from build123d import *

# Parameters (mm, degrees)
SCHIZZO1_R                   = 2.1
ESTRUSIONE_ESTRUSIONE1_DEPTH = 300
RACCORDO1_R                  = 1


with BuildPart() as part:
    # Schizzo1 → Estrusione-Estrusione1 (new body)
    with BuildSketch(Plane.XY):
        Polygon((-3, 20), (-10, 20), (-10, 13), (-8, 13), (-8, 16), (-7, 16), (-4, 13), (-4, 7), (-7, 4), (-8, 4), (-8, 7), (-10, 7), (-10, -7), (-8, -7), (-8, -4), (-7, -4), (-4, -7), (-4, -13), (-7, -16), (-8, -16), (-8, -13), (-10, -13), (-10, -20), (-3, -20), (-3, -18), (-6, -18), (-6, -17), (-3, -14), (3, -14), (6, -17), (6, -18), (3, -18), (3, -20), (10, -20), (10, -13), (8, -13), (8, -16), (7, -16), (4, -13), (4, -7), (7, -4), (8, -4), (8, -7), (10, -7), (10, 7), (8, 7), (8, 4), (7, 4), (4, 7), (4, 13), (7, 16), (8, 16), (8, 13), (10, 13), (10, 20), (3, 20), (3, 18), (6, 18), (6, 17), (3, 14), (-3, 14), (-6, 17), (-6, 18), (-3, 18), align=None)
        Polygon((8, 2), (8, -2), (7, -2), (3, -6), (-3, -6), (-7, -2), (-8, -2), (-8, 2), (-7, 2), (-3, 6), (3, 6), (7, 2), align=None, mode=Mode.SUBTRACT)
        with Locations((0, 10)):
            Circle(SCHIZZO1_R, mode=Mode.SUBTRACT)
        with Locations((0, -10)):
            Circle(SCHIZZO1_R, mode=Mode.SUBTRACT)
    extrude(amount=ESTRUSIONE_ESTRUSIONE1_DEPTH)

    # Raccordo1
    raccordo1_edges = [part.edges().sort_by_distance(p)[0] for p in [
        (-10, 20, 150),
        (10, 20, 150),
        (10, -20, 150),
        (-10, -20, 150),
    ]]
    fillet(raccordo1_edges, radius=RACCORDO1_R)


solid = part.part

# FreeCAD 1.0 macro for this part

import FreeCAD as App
import Part
import Sketcher
from FreeCAD import Vector


def edges_at(feature, points):
    """Names of the edges that pass closest to the given points."""
    edges = feature.Shape.Edges
    near = lambda p: min(range(len(edges)), key=lambda i: edges[i].distToShape(Part.Vertex(*p))[0])
    return sorted({f"Edge{near(p) + 1}" for p in points})

doc = App.newDocument("Part")
body = doc.addObject("PartDesign::Body", "Body")

# Sketch on XY plane
sketch1 = body.newObject("Sketcher::SketchObject", "Sketch")
sketch1.AttachmentSupport = (doc.getObject("XY_Plane"), [""])
sketch1.MapMode = "FlatFace"
sketch1.addGeometry([
    Part.LineSegment(Vector(-3, 20, 0), Vector(-10, 20, 0)),  # 0
    Part.LineSegment(Vector(-10, 20, 0), Vector(-10, 13, 0)),  # 1
    Part.LineSegment(Vector(-10, 13, 0), Vector(-8, 13, 0)),  # 2
    Part.LineSegment(Vector(-8, 13, 0), Vector(-8, 16, 0)),  # 3
    Part.LineSegment(Vector(-8, 16, 0), Vector(-7, 16, 0)),  # 4
    Part.LineSegment(Vector(-7, 16, 0), Vector(-4, 13, 0)),  # 5
    Part.LineSegment(Vector(-4, 13, 0), Vector(-4, 7, 0)),  # 6
    Part.LineSegment(Vector(-4, 7, 0), Vector(-7, 4, 0)),  # 7
    Part.LineSegment(Vector(-7, 4, 0), Vector(-8, 4, 0)),  # 8
    Part.LineSegment(Vector(-8, 4, 0), Vector(-8, 7, 0)),  # 9
    Part.LineSegment(Vector(-8, 7, 0), Vector(-10, 7, 0)),  # 10
    Part.LineSegment(Vector(-10, 7, 0), Vector(-10, -7, 0)),  # 11
    Part.LineSegment(Vector(-10, -7, 0), Vector(-8, -7, 0)),  # 12
    Part.LineSegment(Vector(-8, -7, 0), Vector(-8, -4, 0)),  # 13
    Part.LineSegment(Vector(-8, -4, 0), Vector(-7, -4, 0)),  # 14
    Part.LineSegment(Vector(-7, -4, 0), Vector(-4, -7, 0)),  # 15
    Part.LineSegment(Vector(-4, -7, 0), Vector(-4, -13, 0)),  # 16
    Part.LineSegment(Vector(-4, -13, 0), Vector(-7, -16, 0)),  # 17
    Part.LineSegment(Vector(-7, -16, 0), Vector(-8, -16, 0)),  # 18
    Part.LineSegment(Vector(-8, -16, 0), Vector(-8, -13, 0)),  # 19
    Part.LineSegment(Vector(-8, -13, 0), Vector(-10, -13, 0)),  # 20
    Part.LineSegment(Vector(-10, -13, 0), Vector(-10, -20, 0)),  # 21
    Part.LineSegment(Vector(-10, -20, 0), Vector(-3, -20, 0)),  # 22
    Part.LineSegment(Vector(-3, -20, 0), Vector(-3, -18, 0)),  # 23
    Part.LineSegment(Vector(-3, -18, 0), Vector(-6, -18, 0)),  # 24
    Part.LineSegment(Vector(-6, -18, 0), Vector(-6, -17, 0)),  # 25
    Part.LineSegment(Vector(-6, -17, 0), Vector(-3, -14, 0)),  # 26
    Part.LineSegment(Vector(-3, -14, 0), Vector(3, -14, 0)),  # 27
    Part.LineSegment(Vector(3, -14, 0), Vector(6, -17, 0)),  # 28
    Part.LineSegment(Vector(6, -17, 0), Vector(6, -18, 0)),  # 29
    Part.LineSegment(Vector(6, -18, 0), Vector(3, -18, 0)),  # 30
    Part.LineSegment(Vector(3, -18, 0), Vector(3, -20, 0)),  # 31
    Part.LineSegment(Vector(3, -20, 0), Vector(10, -20, 0)),  # 32
    Part.LineSegment(Vector(10, -20, 0), Vector(10, -13, 0)),  # 33
    Part.LineSegment(Vector(10, -13, 0), Vector(8, -13, 0)),  # 34
    Part.LineSegment(Vector(8, -13, 0), Vector(8, -16, 0)),  # 35
    Part.LineSegment(Vector(8, -16, 0), Vector(7, -16, 0)),  # 36
    Part.LineSegment(Vector(7, -16, 0), Vector(4, -13, 0)),  # 37
    Part.LineSegment(Vector(4, -13, 0), Vector(4, -7, 0)),  # 38
    Part.LineSegment(Vector(4, -7, 0), Vector(7, -4, 0)),  # 39
    Part.LineSegment(Vector(7, -4, 0), Vector(8, -4, 0)),  # 40
    Part.LineSegment(Vector(8, -4, 0), Vector(8, -7, 0)),  # 41
    Part.LineSegment(Vector(8, -7, 0), Vector(10, -7, 0)),  # 42
    Part.LineSegment(Vector(10, -7, 0), Vector(10, 7, 0)),  # 43
    Part.LineSegment(Vector(10, 7, 0), Vector(8, 7, 0)),  # 44
    Part.LineSegment(Vector(8, 7, 0), Vector(8, 4, 0)),  # 45
    Part.LineSegment(Vector(8, 4, 0), Vector(7, 4, 0)),  # 46
    Part.LineSegment(Vector(7, 4, 0), Vector(4, 7, 0)),  # 47
    Part.LineSegment(Vector(4, 7, 0), Vector(4, 13, 0)),  # 48
    Part.LineSegment(Vector(4, 13, 0), Vector(7, 16, 0)),  # 49
    Part.LineSegment(Vector(7, 16, 0), Vector(8, 16, 0)),  # 50
    Part.LineSegment(Vector(8, 16, 0), Vector(8, 13, 0)),  # 51
    Part.LineSegment(Vector(8, 13, 0), Vector(10, 13, 0)),  # 52
    Part.LineSegment(Vector(10, 13, 0), Vector(10, 20, 0)),  # 53
    Part.LineSegment(Vector(10, 20, 0), Vector(3, 20, 0)),  # 54
    Part.LineSegment(Vector(3, 20, 0), Vector(3, 18, 0)),  # 55
    Part.LineSegment(Vector(3, 18, 0), Vector(6, 18, 0)),  # 56
    Part.LineSegment(Vector(6, 18, 0), Vector(6, 17, 0)),  # 57
    Part.LineSegment(Vector(6, 17, 0), Vector(3, 14, 0)),  # 58
    Part.LineSegment(Vector(3, 14, 0), Vector(-3, 14, 0)),  # 59
    Part.LineSegment(Vector(-3, 14, 0), Vector(-6, 17, 0)),  # 60
    Part.LineSegment(Vector(-6, 17, 0), Vector(-6, 18, 0)),  # 61
    Part.LineSegment(Vector(-6, 18, 0), Vector(-3, 18, 0)),  # 62
    Part.LineSegment(Vector(-3, 18, 0), Vector(-3, 20, 0)),  # 63
    Part.Circle(Vector(0, -10, 0), Vector(0, 0, 1), 2.1),  # 64
    Part.LineSegment(Vector(7, 2, 0), Vector(8, 2, 0)),  # 65
    Part.LineSegment(Vector(8, 2, 0), Vector(8, -2, 0)),  # 66
    Part.LineSegment(Vector(8, -2, 0), Vector(7, -2, 0)),  # 67
    Part.LineSegment(Vector(7, -2, 0), Vector(3, -6, 0)),  # 68
    Part.LineSegment(Vector(3, -6, 0), Vector(-3, -6, 0)),  # 69
    Part.LineSegment(Vector(-3, -6, 0), Vector(-7, -2, 0)),  # 70
    Part.LineSegment(Vector(-7, -2, 0), Vector(-8, -2, 0)),  # 71
    Part.LineSegment(Vector(-8, -2, 0), Vector(-8, 2, 0)),  # 72
    Part.LineSegment(Vector(-8, 2, 0), Vector(-7, 2, 0)),  # 73
    Part.LineSegment(Vector(-7, 2, 0), Vector(-3, 6, 0)),  # 74
    Part.LineSegment(Vector(-3, 6, 0), Vector(3, 6, 0)),  # 75
    Part.LineSegment(Vector(3, 6, 0), Vector(7, 2, 0)),  # 76
    Part.Circle(Vector(0, 10, 0), Vector(0, 0, 1), 2.1),  # 77
], False)
sketch1.addConstraint([
    Sketcher.Constraint("Coincident", 0, 2, 1, 1),
    Sketcher.Constraint("Coincident", 1, 2, 2, 1),
    Sketcher.Constraint("Coincident", 2, 2, 3, 1),
    Sketcher.Constraint("Coincident", 3, 2, 4, 1),
    Sketcher.Constraint("Coincident", 4, 2, 5, 1),
    Sketcher.Constraint("Coincident", 5, 2, 6, 1),
    Sketcher.Constraint("Coincident", 6, 2, 7, 1),
    Sketcher.Constraint("Coincident", 7, 2, 8, 1),
    Sketcher.Constraint("Coincident", 8, 2, 9, 1),
    Sketcher.Constraint("Coincident", 9, 2, 10, 1),
    Sketcher.Constraint("Coincident", 10, 2, 11, 1),
    Sketcher.Constraint("Coincident", 11, 2, 12, 1),
    Sketcher.Constraint("Coincident", 12, 2, 13, 1),
    Sketcher.Constraint("Coincident", 13, 2, 14, 1),
    Sketcher.Constraint("Coincident", 14, 2, 15, 1),
    Sketcher.Constraint("Coincident", 15, 2, 16, 1),
    Sketcher.Constraint("Coincident", 16, 2, 17, 1),
    Sketcher.Constraint("Coincident", 17, 2, 18, 1),
    Sketcher.Constraint("Coincident", 18, 2, 19, 1),
    Sketcher.Constraint("Coincident", 19, 2, 20, 1),
    Sketcher.Constraint("Coincident", 20, 2, 21, 1),
    Sketcher.Constraint("Coincident", 21, 2, 22, 1),
    Sketcher.Constraint("Coincident", 22, 2, 23, 1),
    Sketcher.Constraint("Coincident", 23, 2, 24, 1),
    Sketcher.Constraint("Coincident", 24, 2, 25, 1),
    Sketcher.Constraint("Coincident", 25, 2, 26, 1),
    Sketcher.Constraint("Coincident", 26, 2, 27, 1),
    Sketcher.Constraint("Coincident", 27, 2, 28, 1),
    Sketcher.Constraint("Coincident", 28, 2, 29, 1),
    Sketcher.Constraint("Coincident", 29, 2, 30, 1),
    Sketcher.Constraint("Coincident", 30, 2, 31, 1),
    Sketcher.Constraint("Coincident", 31, 2, 32, 1),
    Sketcher.Constraint("Coincident", 32, 2, 33, 1),
    Sketcher.Constraint("Coincident", 33, 2, 34, 1),
    Sketcher.Constraint("Coincident", 34, 2, 35, 1),
    Sketcher.Constraint("Coincident", 35, 2, 36, 1),
    Sketcher.Constraint("Coincident", 36, 2, 37, 1),
    Sketcher.Constraint("Coincident", 37, 2, 38, 1),
    Sketcher.Constraint("Coincident", 38, 2, 39, 1),
    Sketcher.Constraint("Coincident", 39, 2, 40, 1),
    Sketcher.Constraint("Coincident", 40, 2, 41, 1),
    Sketcher.Constraint("Coincident", 41, 2, 42, 1),
    Sketcher.Constraint("Coincident", 42, 2, 43, 1),
    Sketcher.Constraint("Coincident", 43, 2, 44, 1),
    Sketcher.Constraint("Coincident", 44, 2, 45, 1),
    Sketcher.Constraint("Coincident", 45, 2, 46, 1),
    Sketcher.Constraint("Coincident", 46, 2, 47, 1),
    Sketcher.Constraint("Coincident", 47, 2, 48, 1),
    Sketcher.Constraint("Coincident", 48, 2, 49, 1),
    Sketcher.Constraint("Coincident", 49, 2, 50, 1),
    Sketcher.Constraint("Coincident", 50, 2, 51, 1),
    Sketcher.Constraint("Coincident", 51, 2, 52, 1),
    Sketcher.Constraint("Coincident", 52, 2, 53, 1),
    Sketcher.Constraint("Coincident", 53, 2, 54, 1),
    Sketcher.Constraint("Coincident", 54, 2, 55, 1),
    Sketcher.Constraint("Coincident", 55, 2, 56, 1),
    Sketcher.Constraint("Coincident", 56, 2, 57, 1),
    Sketcher.Constraint("Coincident", 57, 2, 58, 1),
    Sketcher.Constraint("Coincident", 58, 2, 59, 1),
    Sketcher.Constraint("Coincident", 59, 2, 60, 1),
    Sketcher.Constraint("Coincident", 60, 2, 61, 1),
    Sketcher.Constraint("Coincident", 61, 2, 62, 1),
    Sketcher.Constraint("Coincident", 62, 2, 63, 1),
    Sketcher.Constraint("Coincident", 63, 2, 0, 1),
    Sketcher.Constraint("Coincident", 65, 2, 66, 1),
    Sketcher.Constraint("Coincident", 66, 2, 67, 1),
    Sketcher.Constraint("Coincident", 67, 2, 68, 1),
    Sketcher.Constraint("Coincident", 68, 2, 69, 1),
    Sketcher.Constraint("Coincident", 69, 2, 70, 1),
    Sketcher.Constraint("Coincident", 70, 2, 71, 1),
    Sketcher.Constraint("Coincident", 71, 2, 72, 1),
    Sketcher.Constraint("Coincident", 72, 2, 73, 1),
    Sketcher.Constraint("Coincident", 73, 2, 74, 1),
    Sketcher.Constraint("Coincident", 74, 2, 75, 1),
    Sketcher.Constraint("Coincident", 75, 2, 76, 1),
    Sketcher.Constraint("Coincident", 76, 2, 65, 1),
    Sketcher.Constraint("Horizontal", 0),
    Sketcher.Constraint("Vertical", 1),
    Sketcher.Constraint("Horizontal", 2),
    Sketcher.Constraint("Vertical", 3),
    Sketcher.Constraint("Horizontal", 4),
    Sketcher.Constraint("Vertical", 6),
    Sketcher.Constraint("Horizontal", 8),
    Sketcher.Constraint("Vertical", 9),
    Sketcher.Constraint("Horizontal", 10),
    Sketcher.Constraint("Vertical", 11),
    Sketcher.Constraint("Horizontal", 12),
    Sketcher.Constraint("Vertical", 13),
    Sketcher.Constraint("Horizontal", 14),
    Sketcher.Constraint("Vertical", 16),
    Sketcher.Constraint("Horizontal", 18),
    Sketcher.Constraint("Vertical", 19),
    Sketcher.Constraint("Horizontal", 20),
    Sketcher.Constraint("Vertical", 21),
    Sketcher.Constraint("Horizontal", 22),
    Sketcher.Constraint("Vertical", 23),
    Sketcher.Constraint("Horizontal", 24),
    Sketcher.Constraint("Vertical", 25),
    Sketcher.Constraint("Horizontal", 27),
    Sketcher.Constraint("Vertical", 29),
    Sketcher.Constraint("Horizontal", 30),
    Sketcher.Constraint("Vertical", 31),
    Sketcher.Constraint("Horizontal", 32),
    Sketcher.Constraint("Vertical", 33),
    Sketcher.Constraint("Horizontal", 34),
    Sketcher.Constraint("Vertical", 35),
    Sketcher.Constraint("Horizontal", 36),
    Sketcher.Constraint("Vertical", 38),
    Sketcher.Constraint("Horizontal", 40),
    Sketcher.Constraint("Vertical", 41),
    Sketcher.Constraint("Horizontal", 42),
    Sketcher.Constraint("Vertical", 43),
    Sketcher.Constraint("Horizontal", 44),
    Sketcher.Constraint("Vertical", 45),
    Sketcher.Constraint("Horizontal", 46),
    Sketcher.Constraint("Vertical", 48),
    Sketcher.Constraint("Horizontal", 50),
    Sketcher.Constraint("Vertical", 51),
    Sketcher.Constraint("Horizontal", 52),
    Sketcher.Constraint("Vertical", 53),
    Sketcher.Constraint("Horizontal", 54),
    Sketcher.Constraint("Vertical", 55),
    Sketcher.Constraint("Horizontal", 56),
    Sketcher.Constraint("Vertical", 57),
    Sketcher.Constraint("Horizontal", 59),
    Sketcher.Constraint("Vertical", 61),
    Sketcher.Constraint("Horizontal", 62),
    Sketcher.Constraint("Vertical", 63),
    Sketcher.Constraint("Horizontal", 65),
    Sketcher.Constraint("Vertical", 66),
    Sketcher.Constraint("Horizontal", 67),
    Sketcher.Constraint("Horizontal", 69),
    Sketcher.Constraint("Horizontal", 71),
    Sketcher.Constraint("Vertical", 72),
    Sketcher.Constraint("Horizontal", 73),
    Sketcher.Constraint("Horizontal", 75),
    Sketcher.Constraint("Equal", 64, 77),
    Sketcher.Constraint("Symmetric", 64, 3, 77, 3, -1, 1),
    Sketcher.Constraint("Symmetric", 0, 2, 32, 2, -1, 1),
    Sketcher.Constraint("Symmetric", 2, 2, 34, 2, -1, 1),
    Sketcher.Constraint("Symmetric", 4, 2, 36, 2, -1, 1),
    Sketcher.Constraint("Symmetric", 5, 2, 37, 2, -1, 1),
    Sketcher.Constraint("Symmetric", 7, 2, 39, 2, -1, 1),
    Sketcher.Constraint("Symmetric", 9, 2, 41, 2, -1, 1),
    Sketcher.Constraint("Symmetric", 11, 2, 43, 2, -1, 1),
    Sketcher.Constraint("Symmetric", 13, 2, 45, 2, -1, 1),
    Sketcher.Constraint("Symmetric", 15, 2, 47, 2, -1, 1),
    Sketcher.Constraint("Symmetric", 17, 2, 49, 2, -1, 1),
    Sketcher.Constraint("Symmetric", 19, 2, 51, 2, -1, 1),
    Sketcher.Constraint("Symmetric", 21, 2, 53, 2, -1, 1),
    Sketcher.Constraint("Symmetric", 23, 2, 55, 2, -1, 1),
    Sketcher.Constraint("Symmetric", 25, 2, 57, 2, -1, 1),
    Sketcher.Constraint("Symmetric", 26, 2, 58, 2, -1, 1),
    Sketcher.Constraint("Symmetric", 28, 2, 60, 2, -1, 1),
    Sketcher.Constraint("Symmetric", 30, 2, 62, 2, -1, 1),
    Sketcher.Constraint("Symmetric", 65, 2, 71, 2, -1, 1),
    Sketcher.Constraint("Symmetric", 67, 2, 73, 2, -1, 1),
    Sketcher.Constraint("Symmetric", 68, 2, 74, 2, -1, 1),
    Sketcher.Constraint("Symmetric", 25, 2, 28, 2, -2),
    Sketcher.Constraint("Symmetric", 23, 2, 30, 2, -2),
    Sketcher.Constraint("Symmetric", 21, 2, 32, 2, -2),
    Sketcher.Constraint("Symmetric", 19, 2, 34, 2, -2),
    Sketcher.Constraint("Symmetric", 17, 2, 36, 2, -2),
    Sketcher.Constraint("Symmetric", 16, 2, 37, 2, -2),
    Sketcher.Constraint("Symmetric", 14, 2, 39, 2, -2),
    Sketcher.Constraint("Symmetric", 12, 2, 41, 2, -2),
    Sketcher.Constraint("Symmetric", 67, 2, 70, 2, -2),
    Sketcher.Constraint("PointOnObject", 64, 3, -2),
    Sketcher.Constraint("Perpendicular", 5, 7),
    Sketcher.Constraint("Perpendicular", 7, 15),
    Sketcher.Constraint("Perpendicular", 15, 17),
    Sketcher.Constraint("Parallel", 17, 26),
    Sketcher.Constraint("Perpendicular", 26, 28),
    Sketcher.Constraint("Perpendicular", 37, 39),
    Sketcher.Constraint("Perpendicular", 39, 47),
    Sketcher.Constraint("Perpendicular", 47, 49),
    Sketcher.Constraint("Perpendicular", 58, 60),
    Sketcher.Constraint("Perpendicular", 60, 68),
    Sketcher.Constraint("Perpendicular", 68, 70),
    Sketcher.Constraint("Perpendicular", 74, 76),
    Sketcher.Constraint("Horizontal", 2, 2, 5, 2),
    Sketcher.Constraint("Horizontal", 6, 2, 9, 2),
    Sketcher.Constraint("Vertical", 4, 2, 7, 2),
    Sketcher.Constraint("Vertical", 3, 2, 8, 2),
    Sketcher.Constraint("Vertical", 1, 2, 10, 2),
    Sketcher.Constraint("Vertical", 23, 2, 26, 2),
    Sketcher.Constraint("Vertical", 51, 2, 65, 2),
    Sketcher.Constraint("Vertical", 49, 2, 67, 2),
    Sketcher.Constraint("Vertical", 58, 2, 68, 2),
    Sketcher.Constraint("Vertical", 68, 2, 75, 2),
    Sketcher.Constraint("Equal", 54, 1),
    Sketcher.Constraint("Equal", 62, 3),
    Sketcher.Constraint("Equal", 75, 6),
    Sketcher.Constraint("Equal", 52, 23),
    Sketcher.Constraint("Equal", 73, 25),
    Sketcher.Constraint("Diameter", 64, 4.2),
    Sketcher.Constraint("DistanceX", 0, 2, 0, 1, 7.0),
    Sketcher.Constraint("DistanceX", 2, 1, 2, 2, 2.0),
    Sketcher.Constraint("DistanceX", 4, 1, 4, 2, 1.0),
    Sketcher.Constraint("DistanceX", 24, 2, 24, 1, 3.0),
    Sketcher.Constraint("DistanceX", 27, 1, 27, 2, 6.0),
    Sketcher.Constraint("DistanceY", 11, 2, 11, 1, 14.0),
    Sketcher.Constraint("DistanceY", 66, 2, 66, 1, 4.0),
    Sketcher.Constraint("DistanceY", 64, 3, -1, 1, 10.0),
])
pad1 = body.newObject("PartDesign::Pad", "Pad")
pad1.Profile = sketch1
pad1.Length = 300
doc.recompute()

fillet = body.newObject("PartDesign::Fillet", "Fillet")
fillet.Base = (pad1, edges_at(pad1, [
    (-10, 20, 150),
    (10, 20, 150),
    (10, -20, 150),
    (-10, -20, 150),
]))
fillet.Radius = 1

doc.recompute()
